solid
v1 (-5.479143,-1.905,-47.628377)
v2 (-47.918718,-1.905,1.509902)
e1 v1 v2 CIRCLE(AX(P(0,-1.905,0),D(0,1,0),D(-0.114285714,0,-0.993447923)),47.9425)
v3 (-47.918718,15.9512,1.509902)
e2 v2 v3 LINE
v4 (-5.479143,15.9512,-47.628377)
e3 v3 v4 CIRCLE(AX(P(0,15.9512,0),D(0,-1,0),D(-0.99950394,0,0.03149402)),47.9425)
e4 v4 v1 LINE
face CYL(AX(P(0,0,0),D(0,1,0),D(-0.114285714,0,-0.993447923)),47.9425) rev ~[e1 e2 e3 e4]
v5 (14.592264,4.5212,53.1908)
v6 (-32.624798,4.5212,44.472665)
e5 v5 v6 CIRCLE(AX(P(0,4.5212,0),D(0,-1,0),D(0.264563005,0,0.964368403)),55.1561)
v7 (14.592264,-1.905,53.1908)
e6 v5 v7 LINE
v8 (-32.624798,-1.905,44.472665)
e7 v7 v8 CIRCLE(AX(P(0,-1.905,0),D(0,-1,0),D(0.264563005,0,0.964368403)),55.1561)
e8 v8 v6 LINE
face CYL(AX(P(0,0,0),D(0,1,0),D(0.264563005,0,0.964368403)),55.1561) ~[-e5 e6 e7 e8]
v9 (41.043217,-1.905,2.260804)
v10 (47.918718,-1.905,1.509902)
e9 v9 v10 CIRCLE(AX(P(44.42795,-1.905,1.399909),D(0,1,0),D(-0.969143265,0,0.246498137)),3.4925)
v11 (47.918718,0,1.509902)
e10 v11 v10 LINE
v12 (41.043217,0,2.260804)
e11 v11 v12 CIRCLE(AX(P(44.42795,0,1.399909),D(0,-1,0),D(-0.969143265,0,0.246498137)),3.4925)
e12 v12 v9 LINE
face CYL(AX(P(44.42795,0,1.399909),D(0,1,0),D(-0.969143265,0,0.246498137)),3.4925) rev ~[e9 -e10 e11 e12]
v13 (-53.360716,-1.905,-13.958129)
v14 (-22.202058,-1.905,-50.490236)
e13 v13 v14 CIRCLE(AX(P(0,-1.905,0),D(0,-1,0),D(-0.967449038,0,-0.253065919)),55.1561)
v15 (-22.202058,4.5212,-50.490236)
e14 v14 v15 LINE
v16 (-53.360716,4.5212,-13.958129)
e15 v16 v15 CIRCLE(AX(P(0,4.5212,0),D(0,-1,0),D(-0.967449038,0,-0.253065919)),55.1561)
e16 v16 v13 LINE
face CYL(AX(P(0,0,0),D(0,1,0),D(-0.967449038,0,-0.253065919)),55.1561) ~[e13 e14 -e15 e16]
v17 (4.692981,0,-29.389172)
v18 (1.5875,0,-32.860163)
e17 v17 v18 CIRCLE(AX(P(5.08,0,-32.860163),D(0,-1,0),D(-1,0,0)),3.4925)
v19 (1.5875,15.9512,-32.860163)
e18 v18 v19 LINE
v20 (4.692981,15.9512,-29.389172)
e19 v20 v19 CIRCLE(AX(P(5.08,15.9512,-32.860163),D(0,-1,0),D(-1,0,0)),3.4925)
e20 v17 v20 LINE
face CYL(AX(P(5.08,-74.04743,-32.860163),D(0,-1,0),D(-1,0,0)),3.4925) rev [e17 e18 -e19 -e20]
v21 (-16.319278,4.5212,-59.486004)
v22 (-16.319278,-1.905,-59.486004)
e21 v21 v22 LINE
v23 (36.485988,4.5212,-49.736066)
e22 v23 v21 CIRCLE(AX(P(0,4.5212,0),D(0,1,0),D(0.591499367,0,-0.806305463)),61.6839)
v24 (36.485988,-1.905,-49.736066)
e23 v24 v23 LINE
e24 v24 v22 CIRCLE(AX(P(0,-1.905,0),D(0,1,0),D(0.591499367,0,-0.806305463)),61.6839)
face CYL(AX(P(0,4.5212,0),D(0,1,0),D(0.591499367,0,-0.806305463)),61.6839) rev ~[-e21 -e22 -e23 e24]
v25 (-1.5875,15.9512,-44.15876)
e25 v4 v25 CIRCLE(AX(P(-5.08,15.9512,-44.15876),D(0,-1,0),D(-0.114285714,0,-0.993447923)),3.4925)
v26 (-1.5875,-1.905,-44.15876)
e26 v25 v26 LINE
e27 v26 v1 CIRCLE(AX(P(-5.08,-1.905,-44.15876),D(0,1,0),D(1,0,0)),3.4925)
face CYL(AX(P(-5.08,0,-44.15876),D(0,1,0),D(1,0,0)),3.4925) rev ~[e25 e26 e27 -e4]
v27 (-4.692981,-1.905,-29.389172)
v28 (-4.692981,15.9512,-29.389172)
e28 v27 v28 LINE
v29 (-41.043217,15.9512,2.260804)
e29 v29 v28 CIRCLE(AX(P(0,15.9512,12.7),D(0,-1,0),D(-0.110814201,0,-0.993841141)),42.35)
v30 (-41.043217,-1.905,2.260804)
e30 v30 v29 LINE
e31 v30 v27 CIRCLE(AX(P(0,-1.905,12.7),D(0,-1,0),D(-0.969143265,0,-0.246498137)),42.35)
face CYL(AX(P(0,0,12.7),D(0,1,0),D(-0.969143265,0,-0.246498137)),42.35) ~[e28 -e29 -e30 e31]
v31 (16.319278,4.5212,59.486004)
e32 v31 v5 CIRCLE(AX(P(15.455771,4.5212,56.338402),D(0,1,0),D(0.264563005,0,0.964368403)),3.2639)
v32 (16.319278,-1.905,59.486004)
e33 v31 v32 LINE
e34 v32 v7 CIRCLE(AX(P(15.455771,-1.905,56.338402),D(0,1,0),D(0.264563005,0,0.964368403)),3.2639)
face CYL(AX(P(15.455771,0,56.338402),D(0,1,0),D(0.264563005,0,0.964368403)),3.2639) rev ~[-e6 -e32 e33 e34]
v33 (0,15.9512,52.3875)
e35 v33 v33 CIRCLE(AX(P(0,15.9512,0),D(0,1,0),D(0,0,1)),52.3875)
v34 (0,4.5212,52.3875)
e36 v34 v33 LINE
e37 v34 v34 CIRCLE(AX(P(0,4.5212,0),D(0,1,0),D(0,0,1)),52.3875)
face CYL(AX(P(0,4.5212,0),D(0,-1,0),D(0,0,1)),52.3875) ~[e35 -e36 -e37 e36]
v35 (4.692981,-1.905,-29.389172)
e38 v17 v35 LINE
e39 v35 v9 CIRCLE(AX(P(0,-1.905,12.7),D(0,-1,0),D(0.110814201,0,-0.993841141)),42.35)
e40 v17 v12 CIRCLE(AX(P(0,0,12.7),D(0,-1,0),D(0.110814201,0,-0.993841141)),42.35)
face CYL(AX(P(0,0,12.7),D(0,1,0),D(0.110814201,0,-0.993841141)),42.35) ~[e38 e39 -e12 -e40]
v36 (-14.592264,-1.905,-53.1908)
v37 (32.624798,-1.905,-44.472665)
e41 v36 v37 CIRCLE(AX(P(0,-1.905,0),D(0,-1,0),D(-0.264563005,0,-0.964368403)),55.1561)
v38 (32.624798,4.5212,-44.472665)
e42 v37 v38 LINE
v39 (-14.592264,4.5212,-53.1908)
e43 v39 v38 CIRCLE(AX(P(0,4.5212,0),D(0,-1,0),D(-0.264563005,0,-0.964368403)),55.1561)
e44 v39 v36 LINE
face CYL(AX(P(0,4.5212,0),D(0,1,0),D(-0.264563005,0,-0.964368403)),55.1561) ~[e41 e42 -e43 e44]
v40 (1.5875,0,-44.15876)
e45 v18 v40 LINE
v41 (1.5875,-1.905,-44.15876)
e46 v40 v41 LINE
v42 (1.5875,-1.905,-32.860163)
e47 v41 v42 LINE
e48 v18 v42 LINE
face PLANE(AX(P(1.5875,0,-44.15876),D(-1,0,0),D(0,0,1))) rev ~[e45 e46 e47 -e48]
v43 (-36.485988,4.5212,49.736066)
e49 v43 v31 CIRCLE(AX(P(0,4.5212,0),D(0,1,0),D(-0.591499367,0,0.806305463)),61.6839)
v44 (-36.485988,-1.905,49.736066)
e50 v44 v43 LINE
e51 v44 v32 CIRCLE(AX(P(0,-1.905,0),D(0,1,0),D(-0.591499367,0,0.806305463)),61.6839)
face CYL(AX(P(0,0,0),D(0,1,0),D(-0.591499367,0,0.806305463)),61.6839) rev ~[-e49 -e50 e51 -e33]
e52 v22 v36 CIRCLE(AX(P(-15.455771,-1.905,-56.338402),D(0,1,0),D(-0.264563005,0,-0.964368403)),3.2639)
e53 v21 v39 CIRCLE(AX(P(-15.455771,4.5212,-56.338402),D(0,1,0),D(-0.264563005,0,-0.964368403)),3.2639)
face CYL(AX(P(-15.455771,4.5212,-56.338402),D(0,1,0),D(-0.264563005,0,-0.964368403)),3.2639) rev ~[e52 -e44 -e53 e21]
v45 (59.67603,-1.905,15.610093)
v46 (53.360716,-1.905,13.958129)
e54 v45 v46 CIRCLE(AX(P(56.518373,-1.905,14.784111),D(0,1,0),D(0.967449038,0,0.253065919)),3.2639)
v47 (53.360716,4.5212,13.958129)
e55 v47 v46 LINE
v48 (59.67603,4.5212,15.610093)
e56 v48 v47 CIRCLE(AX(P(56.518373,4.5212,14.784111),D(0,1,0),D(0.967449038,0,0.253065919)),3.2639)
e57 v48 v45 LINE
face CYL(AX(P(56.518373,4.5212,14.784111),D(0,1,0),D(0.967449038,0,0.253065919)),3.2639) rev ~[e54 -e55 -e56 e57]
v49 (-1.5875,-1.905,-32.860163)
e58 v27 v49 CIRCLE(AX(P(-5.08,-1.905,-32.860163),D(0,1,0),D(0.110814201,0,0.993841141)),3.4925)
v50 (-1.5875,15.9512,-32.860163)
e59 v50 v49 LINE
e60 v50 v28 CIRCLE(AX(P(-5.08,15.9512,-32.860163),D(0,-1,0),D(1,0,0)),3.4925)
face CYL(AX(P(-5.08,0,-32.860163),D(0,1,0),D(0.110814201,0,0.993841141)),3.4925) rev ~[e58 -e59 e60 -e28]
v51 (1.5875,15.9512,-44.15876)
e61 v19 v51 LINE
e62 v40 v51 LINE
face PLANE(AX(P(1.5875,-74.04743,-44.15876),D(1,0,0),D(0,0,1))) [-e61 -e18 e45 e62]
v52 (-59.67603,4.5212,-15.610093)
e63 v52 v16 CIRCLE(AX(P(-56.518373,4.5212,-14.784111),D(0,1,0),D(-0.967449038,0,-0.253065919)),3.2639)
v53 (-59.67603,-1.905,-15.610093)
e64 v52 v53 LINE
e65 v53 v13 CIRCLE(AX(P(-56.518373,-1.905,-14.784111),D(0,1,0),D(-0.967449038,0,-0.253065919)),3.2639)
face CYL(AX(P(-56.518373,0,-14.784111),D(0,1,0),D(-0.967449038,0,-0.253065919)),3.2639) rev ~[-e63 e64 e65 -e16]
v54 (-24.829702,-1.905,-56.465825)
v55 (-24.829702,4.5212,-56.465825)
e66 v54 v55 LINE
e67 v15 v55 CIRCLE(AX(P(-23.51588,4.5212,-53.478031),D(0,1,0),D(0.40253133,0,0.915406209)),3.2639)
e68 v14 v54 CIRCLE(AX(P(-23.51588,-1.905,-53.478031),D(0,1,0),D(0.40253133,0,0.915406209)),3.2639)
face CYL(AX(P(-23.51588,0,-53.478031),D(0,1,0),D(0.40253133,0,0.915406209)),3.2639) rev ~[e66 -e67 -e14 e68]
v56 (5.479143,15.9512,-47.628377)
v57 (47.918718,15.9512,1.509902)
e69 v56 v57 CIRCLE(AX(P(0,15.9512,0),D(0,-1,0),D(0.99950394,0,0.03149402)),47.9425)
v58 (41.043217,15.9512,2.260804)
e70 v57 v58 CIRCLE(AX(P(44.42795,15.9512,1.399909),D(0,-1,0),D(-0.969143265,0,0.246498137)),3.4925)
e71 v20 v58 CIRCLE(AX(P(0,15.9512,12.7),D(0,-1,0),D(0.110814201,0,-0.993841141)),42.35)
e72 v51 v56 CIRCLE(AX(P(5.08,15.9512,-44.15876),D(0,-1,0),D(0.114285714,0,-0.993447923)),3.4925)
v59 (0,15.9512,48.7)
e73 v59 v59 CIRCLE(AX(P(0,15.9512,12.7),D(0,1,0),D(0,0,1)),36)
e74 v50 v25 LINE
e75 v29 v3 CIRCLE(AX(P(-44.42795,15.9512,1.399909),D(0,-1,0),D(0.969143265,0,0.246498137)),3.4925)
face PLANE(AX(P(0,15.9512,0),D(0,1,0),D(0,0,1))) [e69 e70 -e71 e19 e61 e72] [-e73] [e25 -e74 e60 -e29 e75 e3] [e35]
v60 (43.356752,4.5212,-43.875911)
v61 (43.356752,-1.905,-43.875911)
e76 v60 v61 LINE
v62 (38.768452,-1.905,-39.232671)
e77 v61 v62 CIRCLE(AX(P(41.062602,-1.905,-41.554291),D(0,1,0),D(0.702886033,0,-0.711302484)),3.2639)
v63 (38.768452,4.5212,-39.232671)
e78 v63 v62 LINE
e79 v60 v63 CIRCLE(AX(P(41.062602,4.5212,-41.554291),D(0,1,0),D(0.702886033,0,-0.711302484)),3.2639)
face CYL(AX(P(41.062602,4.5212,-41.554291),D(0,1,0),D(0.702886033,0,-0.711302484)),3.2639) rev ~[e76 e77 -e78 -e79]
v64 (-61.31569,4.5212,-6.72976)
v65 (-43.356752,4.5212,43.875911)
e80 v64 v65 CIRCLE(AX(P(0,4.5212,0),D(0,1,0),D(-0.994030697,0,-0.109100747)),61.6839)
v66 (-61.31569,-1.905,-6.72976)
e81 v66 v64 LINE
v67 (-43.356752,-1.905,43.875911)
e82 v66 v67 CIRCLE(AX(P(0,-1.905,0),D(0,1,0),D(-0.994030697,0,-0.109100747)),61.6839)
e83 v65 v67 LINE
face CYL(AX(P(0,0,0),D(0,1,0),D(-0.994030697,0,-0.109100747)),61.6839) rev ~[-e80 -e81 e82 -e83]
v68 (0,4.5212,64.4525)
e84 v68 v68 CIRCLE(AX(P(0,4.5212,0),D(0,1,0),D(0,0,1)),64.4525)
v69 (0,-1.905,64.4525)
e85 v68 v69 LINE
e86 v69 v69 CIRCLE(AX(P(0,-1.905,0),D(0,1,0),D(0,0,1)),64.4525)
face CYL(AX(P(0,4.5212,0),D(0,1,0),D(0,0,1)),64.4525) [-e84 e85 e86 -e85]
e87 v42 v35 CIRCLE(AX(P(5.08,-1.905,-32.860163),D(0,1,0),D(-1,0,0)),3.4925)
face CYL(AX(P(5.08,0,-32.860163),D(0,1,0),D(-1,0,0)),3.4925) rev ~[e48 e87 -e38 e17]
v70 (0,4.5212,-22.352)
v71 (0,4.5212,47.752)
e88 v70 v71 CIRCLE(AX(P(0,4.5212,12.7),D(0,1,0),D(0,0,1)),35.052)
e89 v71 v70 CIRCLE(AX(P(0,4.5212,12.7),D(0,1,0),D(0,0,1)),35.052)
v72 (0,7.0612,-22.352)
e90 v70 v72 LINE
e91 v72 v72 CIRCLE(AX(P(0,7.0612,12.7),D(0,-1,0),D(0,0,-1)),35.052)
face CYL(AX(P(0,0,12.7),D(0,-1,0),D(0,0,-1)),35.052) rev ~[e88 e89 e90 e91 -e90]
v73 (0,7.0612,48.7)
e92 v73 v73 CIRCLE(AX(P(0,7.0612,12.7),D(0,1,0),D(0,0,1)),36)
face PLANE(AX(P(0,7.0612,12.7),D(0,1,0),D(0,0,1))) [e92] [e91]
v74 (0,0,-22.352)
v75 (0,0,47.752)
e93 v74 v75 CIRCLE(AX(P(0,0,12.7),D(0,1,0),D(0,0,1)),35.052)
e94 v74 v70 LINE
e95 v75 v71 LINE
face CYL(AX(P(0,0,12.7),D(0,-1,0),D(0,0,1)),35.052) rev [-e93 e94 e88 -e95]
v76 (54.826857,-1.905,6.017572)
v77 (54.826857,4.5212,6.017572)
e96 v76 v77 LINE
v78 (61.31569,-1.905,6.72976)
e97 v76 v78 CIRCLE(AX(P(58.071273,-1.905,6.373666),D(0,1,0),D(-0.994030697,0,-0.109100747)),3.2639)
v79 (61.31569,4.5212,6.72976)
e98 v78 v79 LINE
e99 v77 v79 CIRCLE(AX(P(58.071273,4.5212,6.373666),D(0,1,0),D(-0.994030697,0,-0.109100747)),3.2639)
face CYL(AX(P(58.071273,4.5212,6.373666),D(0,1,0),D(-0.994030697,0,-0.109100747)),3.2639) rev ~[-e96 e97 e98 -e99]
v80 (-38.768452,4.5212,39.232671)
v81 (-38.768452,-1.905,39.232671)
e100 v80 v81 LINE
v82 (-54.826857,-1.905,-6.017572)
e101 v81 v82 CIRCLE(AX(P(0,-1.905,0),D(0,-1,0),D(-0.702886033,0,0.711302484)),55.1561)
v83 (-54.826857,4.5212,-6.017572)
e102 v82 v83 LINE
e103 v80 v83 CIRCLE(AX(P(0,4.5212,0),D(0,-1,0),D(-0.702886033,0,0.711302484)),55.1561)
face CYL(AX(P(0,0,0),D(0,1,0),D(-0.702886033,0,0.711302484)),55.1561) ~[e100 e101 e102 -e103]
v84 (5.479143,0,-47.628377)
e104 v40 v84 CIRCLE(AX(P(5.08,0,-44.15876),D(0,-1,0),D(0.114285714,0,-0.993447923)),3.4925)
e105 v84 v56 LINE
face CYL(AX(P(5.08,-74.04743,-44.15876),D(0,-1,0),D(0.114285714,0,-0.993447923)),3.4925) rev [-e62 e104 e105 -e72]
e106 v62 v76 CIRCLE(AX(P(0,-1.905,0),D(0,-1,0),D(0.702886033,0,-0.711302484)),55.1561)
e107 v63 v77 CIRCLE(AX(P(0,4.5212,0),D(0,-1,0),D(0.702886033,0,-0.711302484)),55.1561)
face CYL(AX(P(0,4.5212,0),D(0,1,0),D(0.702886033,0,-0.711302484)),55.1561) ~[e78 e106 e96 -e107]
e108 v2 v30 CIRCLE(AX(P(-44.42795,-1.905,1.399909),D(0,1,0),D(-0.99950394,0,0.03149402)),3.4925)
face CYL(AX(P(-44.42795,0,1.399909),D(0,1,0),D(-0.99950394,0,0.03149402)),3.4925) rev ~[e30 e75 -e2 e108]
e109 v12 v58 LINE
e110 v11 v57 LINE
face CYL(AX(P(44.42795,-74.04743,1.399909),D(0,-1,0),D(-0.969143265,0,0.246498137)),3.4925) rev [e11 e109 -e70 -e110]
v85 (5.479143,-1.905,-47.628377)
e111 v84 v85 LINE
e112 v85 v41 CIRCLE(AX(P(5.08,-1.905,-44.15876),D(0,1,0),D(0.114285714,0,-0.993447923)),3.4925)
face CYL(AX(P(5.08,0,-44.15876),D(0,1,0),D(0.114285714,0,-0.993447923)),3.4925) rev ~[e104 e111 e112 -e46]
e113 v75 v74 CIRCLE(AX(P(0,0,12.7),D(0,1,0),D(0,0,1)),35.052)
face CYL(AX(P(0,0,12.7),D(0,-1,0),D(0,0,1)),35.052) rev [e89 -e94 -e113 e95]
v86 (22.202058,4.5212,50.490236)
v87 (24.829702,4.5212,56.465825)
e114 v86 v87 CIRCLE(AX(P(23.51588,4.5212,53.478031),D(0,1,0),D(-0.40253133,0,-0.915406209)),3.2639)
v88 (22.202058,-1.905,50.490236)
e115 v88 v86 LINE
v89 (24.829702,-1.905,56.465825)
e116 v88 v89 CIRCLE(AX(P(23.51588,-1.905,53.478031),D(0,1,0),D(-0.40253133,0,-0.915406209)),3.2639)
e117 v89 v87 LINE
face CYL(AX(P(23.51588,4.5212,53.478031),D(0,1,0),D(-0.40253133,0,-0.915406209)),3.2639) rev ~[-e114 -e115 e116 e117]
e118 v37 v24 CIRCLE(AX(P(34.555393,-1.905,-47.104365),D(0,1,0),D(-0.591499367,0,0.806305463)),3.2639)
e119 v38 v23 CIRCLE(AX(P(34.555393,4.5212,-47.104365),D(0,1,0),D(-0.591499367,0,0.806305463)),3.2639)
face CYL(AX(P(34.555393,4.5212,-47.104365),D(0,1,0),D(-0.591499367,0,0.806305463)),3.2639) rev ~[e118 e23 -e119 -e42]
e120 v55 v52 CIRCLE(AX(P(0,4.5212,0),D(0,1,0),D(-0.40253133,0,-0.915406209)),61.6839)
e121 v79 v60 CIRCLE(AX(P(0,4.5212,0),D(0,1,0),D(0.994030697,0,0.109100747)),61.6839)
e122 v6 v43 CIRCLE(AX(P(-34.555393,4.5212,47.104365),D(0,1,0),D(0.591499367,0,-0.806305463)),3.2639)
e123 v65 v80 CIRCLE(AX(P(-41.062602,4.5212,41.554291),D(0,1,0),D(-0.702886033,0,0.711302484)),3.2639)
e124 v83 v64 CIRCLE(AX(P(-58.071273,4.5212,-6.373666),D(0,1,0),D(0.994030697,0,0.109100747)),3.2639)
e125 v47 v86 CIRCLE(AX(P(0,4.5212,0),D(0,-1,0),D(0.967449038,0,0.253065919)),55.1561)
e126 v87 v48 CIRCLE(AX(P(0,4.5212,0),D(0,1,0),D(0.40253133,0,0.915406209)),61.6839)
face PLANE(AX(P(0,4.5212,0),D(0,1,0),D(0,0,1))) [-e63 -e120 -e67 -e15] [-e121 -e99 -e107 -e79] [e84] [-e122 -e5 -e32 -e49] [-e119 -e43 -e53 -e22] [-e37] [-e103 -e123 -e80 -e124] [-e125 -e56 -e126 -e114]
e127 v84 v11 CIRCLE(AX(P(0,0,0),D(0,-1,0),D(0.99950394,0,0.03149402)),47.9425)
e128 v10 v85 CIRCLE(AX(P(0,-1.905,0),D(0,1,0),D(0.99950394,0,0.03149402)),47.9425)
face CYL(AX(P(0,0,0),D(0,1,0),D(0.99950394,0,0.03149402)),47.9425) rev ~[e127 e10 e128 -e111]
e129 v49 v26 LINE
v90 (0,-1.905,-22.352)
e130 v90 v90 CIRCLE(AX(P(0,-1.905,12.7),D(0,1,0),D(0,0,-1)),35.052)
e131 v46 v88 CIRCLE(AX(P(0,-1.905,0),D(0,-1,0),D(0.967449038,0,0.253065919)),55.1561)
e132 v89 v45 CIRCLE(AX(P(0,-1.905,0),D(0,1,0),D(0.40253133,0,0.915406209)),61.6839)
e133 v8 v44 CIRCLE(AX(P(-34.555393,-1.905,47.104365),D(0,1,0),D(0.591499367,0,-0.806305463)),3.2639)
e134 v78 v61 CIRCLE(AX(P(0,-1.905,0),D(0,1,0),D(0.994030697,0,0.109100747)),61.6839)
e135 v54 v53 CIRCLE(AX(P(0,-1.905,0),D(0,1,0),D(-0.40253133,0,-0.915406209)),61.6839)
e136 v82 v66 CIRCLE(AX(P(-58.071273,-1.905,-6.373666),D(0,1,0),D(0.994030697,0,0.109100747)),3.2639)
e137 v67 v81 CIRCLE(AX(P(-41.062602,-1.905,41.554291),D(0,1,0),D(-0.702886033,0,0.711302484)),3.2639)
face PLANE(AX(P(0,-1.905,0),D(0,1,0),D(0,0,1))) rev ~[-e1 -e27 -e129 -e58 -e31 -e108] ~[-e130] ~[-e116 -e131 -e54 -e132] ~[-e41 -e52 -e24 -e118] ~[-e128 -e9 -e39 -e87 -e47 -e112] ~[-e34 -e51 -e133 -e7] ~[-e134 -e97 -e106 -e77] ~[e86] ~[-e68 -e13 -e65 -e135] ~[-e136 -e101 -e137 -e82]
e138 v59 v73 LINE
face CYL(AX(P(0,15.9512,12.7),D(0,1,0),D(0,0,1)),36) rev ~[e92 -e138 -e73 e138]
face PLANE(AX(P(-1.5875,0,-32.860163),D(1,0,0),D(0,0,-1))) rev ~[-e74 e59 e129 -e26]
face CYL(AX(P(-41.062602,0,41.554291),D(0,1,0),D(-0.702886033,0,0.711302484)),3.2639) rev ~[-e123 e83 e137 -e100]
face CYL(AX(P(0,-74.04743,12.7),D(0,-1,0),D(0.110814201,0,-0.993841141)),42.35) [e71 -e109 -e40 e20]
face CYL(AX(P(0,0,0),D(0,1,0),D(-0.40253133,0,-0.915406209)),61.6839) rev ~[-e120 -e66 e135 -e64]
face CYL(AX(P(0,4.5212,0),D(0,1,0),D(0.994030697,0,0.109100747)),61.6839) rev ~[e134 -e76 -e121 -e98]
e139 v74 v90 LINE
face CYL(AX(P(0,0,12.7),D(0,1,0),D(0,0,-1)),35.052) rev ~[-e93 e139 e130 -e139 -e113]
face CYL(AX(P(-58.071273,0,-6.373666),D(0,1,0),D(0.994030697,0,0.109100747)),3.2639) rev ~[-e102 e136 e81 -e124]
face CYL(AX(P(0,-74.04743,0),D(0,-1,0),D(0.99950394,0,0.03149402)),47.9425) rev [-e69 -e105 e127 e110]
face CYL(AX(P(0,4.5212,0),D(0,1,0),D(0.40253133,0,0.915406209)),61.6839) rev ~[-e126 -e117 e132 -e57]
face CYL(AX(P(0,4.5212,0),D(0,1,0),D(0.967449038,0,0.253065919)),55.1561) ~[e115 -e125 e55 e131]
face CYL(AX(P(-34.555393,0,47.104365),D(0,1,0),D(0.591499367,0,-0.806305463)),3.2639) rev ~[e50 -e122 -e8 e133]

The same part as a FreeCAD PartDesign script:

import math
import FreeCAD as App
import Part
import Sketcher

V = App.Vector
Q = App.Units.Quantity

doc = App.newDocument("Part")
body = doc.addObject("PartDesign::Body", "Body")

# Sketch on XZ plane
sketch1 = doc.addObject("Sketcher::SketchObject", "Sketch")
body.addObject(sketch1)
sketch1.AttachmentSupport = (doc.XZ_Plane, [""])
sketch1.MapMode = "FlatFace"
sketch1.addGeometry(Part.Circle(V(0, 0, 0), V(0, 0, 1), 62), False)
sketch1.addGeometry(Part.Circle(V(0, 13, 0), V(0, 0, 1), 35), False)
sketch1.addConstraint(Sketcher.Constraint("Coincident", 0, 3, -1, 1))
sketch1.addConstraint(Sketcher.Constraint("PointOnObject", 1, 3, -2))
sketch1.addConstraint(Sketcher.Constraint("Diameter", 1, Q("2.76 in")))
sketch1.addConstraint(Sketcher.Constraint("Diameter", 0, Q("4.875 in")))
sketch1.addConstraint(Sketcher.Constraint("DistanceY", -1, 1, 1, 3, Q("0.5 in")))
pad1 = doc.addObject("PartDesign::Pad", "Pad")
body.addObject(pad1)
pad1.Profile = sketch1
pad1.Length = Q("0.178 in")
pad1.Reversed = True

# Sketch on XZ plane
sketch2 = doc.addObject("Sketcher::SketchObject", "Sketch001")
body.addObject(sketch2)
sketch2.AttachmentSupport = (doc.XZ_Plane, [""])
sketch2.MapMode = "FlatFace"
sketch2.AttachmentOffset = App.Placement(V(0, 0, -0.178 * 25.4), App.Rotation())
sketch2.addGeometry(Part.Circle(V(0, 0, 0), V(0, 0, 1), 52), False)
sketch2.addConstraint(Sketcher.Constraint("Coincident", 0, 3, -1, 1))
sketch2.addConstraint(Sketcher.Constraint("Diameter", 0, Q("4.125 in")))
pad2 = doc.addObject("PartDesign::Pad", "Pad001")
body.addObject(pad2)
pad2.Profile = sketch2
pad2.Length = Q("0.45 in")
pad2.Reversed = True

# Sketch on XZ plane
sketch3 = doc.addObject("Sketcher::SketchObject", "Sketch002")
body.addObject(sketch3)
sketch3.AttachmentSupport = (doc.XZ_Plane, [""])
sketch3.MapMode = "FlatFace"
sketch3.addGeometry(Part.Circle(V(0, 13, 0), V(0, 0, 1), 35), False)
sketch3.addConstraint(Sketcher.Constraint("PointOnObject", 0, 3, -2))
sketch3.addConstraint(Sketcher.Constraint("Diameter", 0, Q("2.76 in")))
sketch3.addConstraint(Sketcher.Constraint("DistanceY", -1, 1, 0, 3, Q("0.5 in")))
pocket1 = doc.addObject("PartDesign::Pocket", "Pocket")
body.addObject(pocket1)
pocket1.Profile = sketch3
pocket1.Type = "ThroughAll"

# Sketch on XZ plane
sketch4 = doc.addObject("Sketcher::SketchObject", "Sketch003")
body.addObject(sketch4)
sketch4.AttachmentSupport = (doc.XZ_Plane, [""])
sketch4.MapMode = "FlatFace"
sketch4.AttachmentOffset = App.Placement(V(0, 0, -0.628 * 25.4), App.Rotation())
sketch4.addGeometry(Part.Circle(V(0, 13, 0), V(0, 0, 1), 36), False)
sketch4.addConstraint(Sketcher.Constraint("PointOnObject", 0, 3, -2))
sketch4.addConstraint(Sketcher.Constraint("DistanceY", -1, 1, 0, 3, Q("0.5 in")))
sketch4.addConstraint(Sketcher.Constraint("Diameter", 0, Q("72 mm")))
pocket2 = doc.addObject("PartDesign::Pocket", "Pocket001")
body.addObject(pocket2)
pocket2.Profile = sketch4
pocket2.Length = Q("0.35 in")
pocket2.Reversed = True

# Sketch on XZ plane
sketch5 = doc.addObject("Sketcher::SketchObject", "Sketch004")
body.addObject(sketch5)
sketch5.AttachmentSupport = (doc.XZ_Plane, [""])
sketch5.MapMode = "FlatFace"
sketch5.AttachmentOffset = App.Placement(V(0, 0, -0.178 * 25.4), App.Rotation())
sketch5.addGeometry(Part.ArcOfCircle(Part.Circle(V(0, 0, 0), V(0, 0, 1), 61.7), math.radians(135), math.radians(186)), False)
sketch5.addGeometry(Part.ArcOfCircle(Part.Circle(V(-41.1, 41.6, 0), V(0, 0, 1), 3.3), math.radians(-45), math.radians(135)), False)
sketch5.addGeometry(Part.ArcOfCircle(Part.Circle(V(0, 0, 0), V(0, 0, 1), 55.2), math.radians(135), math.radians(186)), False)
sketch5.addGeometry(Part.ArcOfCircle(Part.Circle(V(-58.1, -6.4, 0), V(0, 0, 1), 3.3), math.radians(-174), math.radians(6)), False)
sketch5.addConstraint(Sketcher.Constraint("Tangent", 0, 1, 1, 2))
sketch5.addConstraint(Sketcher.Constraint("Tangent", 1, 1, 2, 1))
sketch5.addConstraint(Sketcher.Constraint("Tangent", 2, 2, 3, 2))
sketch5.addConstraint(Sketcher.Constraint("Tangent", 3, 1, 0, 2))
sketch5.addConstraint(Sketcher.Constraint("Coincident", 0, 3, -1, 1))
sketch5.addConstraint(Sketcher.Constraint("Coincident", 2, 3, -1, 1))
sketch5.addConstraint(Sketcher.Constraint("Radius", 0, Q("2.4285 in")))
sketch5.addConstraint(Sketcher.Constraint("Radius", 1, Q("0.1285 in")))
sketch5.addConstraint(Sketcher.Constraint("DistanceY", -1, 1, 1, 3, Q("41.554291 mm")))
sketch5.addConstraint(Sketcher.Constraint("DistanceY", 2, 2, -1, 1, Q("6.017572 mm")))
pocket3 = doc.addObject("PartDesign::Pocket", "Pocket002")
body.addObject(pocket3)
pocket3.Profile = sketch5
pocket3.Length = Q("0.178 in")
pocket3.Reversed = True
doc.recompute()

polarpattern = doc.addObject("PartDesign::PolarPattern", "PolarPattern")
body.addObject(polarpattern)
polarpattern.Originals = [pocket3]
polarpattern.Axis = (doc.Y_Axis, [""])
polarpattern.Angle = 360
polarpattern.Occurrences = 6
body.Tip = polarpattern

# Sketch on XZ plane
sketch6 = doc.addObject("Sketcher::SketchObject", "Sketch005")
body.addObject(sketch6)
sketch6.AttachmentSupport = (doc.XZ_Plane, [""])
sketch6.MapMode = "FlatFace"
sketch6.AttachmentOffset = App.Placement(V(0, 0, -0.628 * 25.4), App.Rotation())
sketch6.addGeometry(Part.LineSegment(V(-1.6, -32.9, 0), V(-1.6, -44.2, 0)), False)
sketch6.addGeometry(Part.ArcOfCircle(Part.Circle(V(-5.1, -44.2, 0), V(0, 0, 1), 3.5), math.radians(-97), math.radians(0)), False)
sketch6.addGeometry(Part.ArcOfCircle(Part.Circle(V(0, 0, 0), V(0, 0, 1), 47.9), math.radians(178), math.radians(263)), False)
sketch6.addGeometry(Part.ArcOfCircle(Part.Circle(V(-44.4, 1.4, 0), V(0, 0, 1), 3.5), math.radians(14), math.radians(178)), False)
sketch6.addGeometry(Part.ArcOfCircle(Part.Circle(V(0, 12.7, 0), V(0, 0, 1), 42.4), math.radians(-166), math.radians(-96)), False)
sketch6.addGeometry(Part.ArcOfCircle(Part.Circle(V(-5.1, -32.9, 0), V(0, 0, 1), 3.5), math.radians(0), math.radians(84)), False)
sketch6.addGeometry(Part.LineSegment(V(1.6, -44.2, 0), V(1.6, -32.9, 0)), False)
sketch6.addGeometry(Part.ArcOfCircle(Part.Circle(V(5.1, -32.9, 0), V(0, 0, 1), 3.5), math.radians(96), math.radians(180)), False)
sketch6.addGeometry(Part.ArcOfCircle(Part.Circle(V(0, 12.7, 0), V(0, 0, 1), 42.4), math.radians(-84), math.radians(-14)), False)
sketch6.addGeometry(Part.ArcOfCircle(Part.Circle(V(44.4, 1.4, 0), V(0, 0, 1), 3.5), math.radians(2), math.radians(166)), False)
sketch6.addGeometry(Part.ArcOfCircle(Part.Circle(V(0, 0, 0), V(0, 0, 1), 47.9), math.radians(-83), math.radians(2)), False)
sketch6.addGeometry(Part.ArcOfCircle(Part.Circle(V(5.1, -44.2, 0), V(0, 0, 1), 3.5), math.radians(180), math.radians(277)), False)
sketch6.addConstraint(Sketcher.Constraint("Tangent", 0, 2, 1, 2))
sketch6.addConstraint(Sketcher.Constraint("Tangent", 1, 1, 2, 2))
sketch6.addConstraint(Sketcher.Constraint("Tangent", 2, 1, 3, 2))
sketch6.addConstraint(Sketcher.Constraint("Tangent", 3, 1, 4, 1))
sketch6.addConstraint(Sketcher.Constraint("Tangent", 4, 2, 5, 2))
sketch6.addConstraint(Sketcher.Constraint("Tangent", 5, 1, 0, 1))
sketch6.addConstraint(Sketcher.Constraint("Tangent", 6, 2, 7, 2))
sketch6.addConstraint(Sketcher.Constraint("Tangent", 7, 1, 8, 1))
sketch6.addConstraint(Sketcher.Constraint("Tangent", 8, 2, 9, 2))
sketch6.addConstraint(Sketcher.Constraint("Tangent", 9, 1, 10, 2))
sketch6.addConstraint(Sketcher.Constraint("Tangent", 10, 1, 11, 2))
sketch6.addConstraint(Sketcher.Constraint("Tangent", 11, 1, 6, 1))
sketch6.addConstraint(Sketcher.Constraint("Vertical", 0))
sketch6.addConstraint(Sketcher.Constraint("Vertical", 6))
sketch6.addConstraint(Sketcher.Constraint("Coincident", 2, 3, -1, 1))
sketch6.addConstraint(Sketcher.Constraint("Coincident", 10, 3, -1, 1))
sketch6.addConstraint(Sketcher.Constraint("Coincident", 8, 3, 4, 3))
sketch6.addConstraint(Sketcher.Constraint("Equal", 1, 3))
sketch6.addConstraint(Sketcher.Constraint("Equal", 3, 5))
sketch6.addConstraint(Sketcher.Constraint("Equal", 5, 7))
sketch6.addConstraint(Sketcher.Constraint("Equal", 4, 8))
sketch6.addConstraint(Sketcher.Constraint("Equal", 7, 9))
sketch6.addConstraint(Sketcher.Constraint("Equal", 2, 10))
sketch6.addConstraint(Sketcher.Constraint("Equal", 9, 11))
sketch6.addConstraint(Sketcher.Constraint("Symmetric", 5, 3, 7, 3, -2))
sketch6.addConstraint(Sketcher.Constraint("DistanceX", 1, 3, -1, 1, Q("0.2 in")))
sketch6.addConstraint(Sketcher.Constraint("DistanceY", -1, 1, 4, 3, Q("0.5 in")))
sketch6.addConstraint(Sketcher.Constraint("Radius", 1, Q("0.1375 in")))
sketch6.addConstraint(Sketcher.Constraint("Radius", 2, Q("1.8875 in")))
sketch6.addConstraint(Sketcher.Constraint("Radius", 4, Q("42.35 mm")))
pocket4 = doc.addObject("PartDesign::Pocket", "Pocket003")
body.addObject(pocket4)
pocket4.Profile = sketch6
pocket4.Type = "ThroughAll"
pocket4.Midplane = True

# Sketch on XZ plane
sketch7 = doc.addObject("Sketcher::SketchObject", "Sketch006")
body.addObject(sketch7)
sketch7.AttachmentSupport = (doc.XZ_Plane, [""])
sketch7.MapMode = "FlatFace"
sketch7.addGeometry(Part.Circle(V(0, 0, 0), V(0, 0, 1), 61.9), False)
sketch7.addGeometry(Part.ArcOfCircle(Part.Circle(V(0, 0, 0), V(0, 0, 1), 61.7), math.radians(135), math.radians(186)), False)
sketch7.addGeometry(Part.ArcOfCircle(Part.Circle(V(-41.1, 41.6, 0), V(0, 0, 1), 3.3), math.radians(-45), math.radians(135)), False)
sketch7.addGeometry(Part.ArcOfCircle(Part.Circle(V(0, 0, 0), V(0, 0, 1), 55.2), math.radians(135), math.radians(186)), False)
sketch7.addGeometry(Part.ArcOfCircle(Part.Circle(V(-58.1, -6.4, 0), V(0, 0, 1), 3.3), math.radians(-174), math.radians(6)), False)
sketch7.addGeometry(Part.ArcOfCircle(Part.Circle(V(0, 0, 0), V(0, 0, 1), 61.7), math.radians(75), math.radians(126)), False)
sketch7.addGeometry(Part.ArcOfCircle(Part.Circle(V(15.5, 56.3, 0), V(0, 0, 1), 3.3), math.radians(-105), math.radians(75)), False)
sketch7.addGeometry(Part.ArcOfCircle(Part.Circle(V(0, 0, 0), V(0, 0, 1), 55.2), math.radians(75), math.radians(126)), False)
sketch7.addGeometry(Part.ArcOfCircle(Part.Circle(V(-34.6, 47.1, 0), V(0, 0, 1), 3.3), math.radians(126), math.radians(306)), False)
sketch7.addGeometry(Part.ArcOfCircle(Part.Circle(V(0, 0, 0), V(0, 0, 1), 61.7), math.radians(-165), math.radians(-114)), False)
sketch7.addGeometry(Part.ArcOfCircle(Part.Circle(V(-56.5, -14.8, 0), V(0, 0, 1), 3.3), math.radians(15), math.radians(195)), False)
sketch7.addGeometry(Part.ArcOfCircle(Part.Circle(V(0, 0, 0), V(0, 0, 1), 55.2), math.radians(-165), math.radians(-114)), False)
sketch7.addGeometry(Part.ArcOfCircle(Part.Circle(V(-23.5, -53.5, 0), V(0, 0, 1), 3.3), math.radians(-114), math.radians(66)), False)
sketch7.addGeometry(Part.ArcOfCircle(Part.Circle(V(-5.1, -32.9, 0), V(0, 0, 1), 3.5), math.radians(0), math.radians(84)), False)
sketch7.addGeometry(Part.LineSegment(V(-1.6, -32.9, 0), V(-1.6, -44.2, 0)), False)
sketch7.addGeometry(Part.ArcOfCircle(Part.Circle(V(-5.1, -44.2, 0), V(0, 0, 1), 3.5), math.radians(-97), math.radians(0)), False)
sketch7.addGeometry(Part.ArcOfCircle(Part.Circle(V(0, 0, 0), V(0, 0, 1), 47.9), math.radians(178), math.radians(263)), False)
sketch7.addGeometry(Part.ArcOfCircle(Part.Circle(V(-44.4, 1.4, 0), V(0, 0, 1), 3.5), math.radians(14), math.radians(178)), False)
sketch7.addGeometry(Part.ArcOfCircle(Part.Circle(V(0, 12.7, 0), V(0, 0, 1), 42.4), math.radians(-166), math.radians(-96)), False)
sketch7.addGeometry(Part.Circle(V(0, 12.7, 0), V(0, 0, 1), 35.1), False)
sketch7.addGeometry(Part.ArcOfCircle(Part.Circle(V(0, 0, 0), V(0, 0, 1), 61.7), math.radians(15), math.radians(66)), False)
sketch7.addGeometry(Part.ArcOfCircle(Part.Circle(V(56.5, 14.8, 0), V(0, 0, 1), 3.3), math.radians(-165), math.radians(15)), False)
sketch7.addGeometry(Part.ArcOfCircle(Part.Circle(V(0, 0, 0), V(0, 0, 1), 55.2), math.radians(15), math.radians(66)), False)
sketch7.addGeometry(Part.ArcOfCircle(Part.Circle(V(23.5, 53.5, 0), V(0, 0, 1), 3.3), math.radians(66), math.radians(246)), False)
sketch7.addGeometry(Part.ArcOfCircle(Part.Circle(V(5.1, -44.2, 0), V(0, 0, 1), 3.5), math.radians(180), math.radians(277)), False)
sketch7.addGeometry(Part.LineSegment(V(1.6, -44.2, 0), V(1.6, -32.9, 0)), False)
sketch7.addGeometry(Part.ArcOfCircle(Part.Circle(V(5.1, -32.9, 0), V(0, 0, 1), 3.5), math.radians(96), math.radians(180)), False)
sketch7.addGeometry(Part.ArcOfCircle(Part.Circle(V(0, 12.7, 0), V(0, 0, 1), 42.4), math.radians(-84), math.radians(-14)), False)
sketch7.addGeometry(Part.ArcOfCircle(Part.Circle(V(44.4, 1.4, 0), V(0, 0, 1), 3.5), math.radians(2), math.radians(166)), False)
sketch7.addGeometry(Part.ArcOfCircle(Part.Circle(V(0, 0, 0), V(0, 0, 1), 47.9), math.radians(-83), math.radians(2)), False)
sketch7.addGeometry(Part.ArcOfCircle(Part.Circle(V(0, 0, 0), V(0, 0, 1), 61.7), math.radians(-105), math.radians(-54)), False)
sketch7.addGeometry(Part.ArcOfCircle(Part.Circle(V(-15.5, -56.3, 0), V(0, 0, 1), 3.3), math.radians(75), math.radians(255)), False)
sketch7.addGeometry(Part.ArcOfCircle(Part.Circle(V(0, 0, 0), V(0, 0, 1), 55.2), math.radians(-105), math.radians(-54)), False)
sketch7.addGeometry(Part.ArcOfCircle(Part.Circle(V(34.6, -47.1, 0), V(0, 0, 1), 3.3), math.radians(-54), math.radians(126)), False)
sketch7.addGeometry(Part.ArcOfCircle(Part.Circle(V(0, 0, 0), V(0, 0, 1), 61.7), math.radians(-45), math.radians(6)), False)
sketch7.addGeometry(Part.ArcOfCircle(Part.Circle(V(41.1, -41.6, 0), V(0, 0, 1), 3.3), math.radians(135), math.radians(315)), False)
sketch7.addGeometry(Part.ArcOfCircle(Part.Circle(V(0, 0, 0), V(0, 0, 1), 55.2), math.radians(-45), math.radians(6)), False)
sketch7.addGeometry(Part.ArcOfCircle(Part.Circle(V(58.1, 6.4, 0), V(0, 0, 1), 3.3), math.radians(6), math.radians(186)), False)
sketch7.addConstraint(Sketcher.Constraint("Tangent", 1, 1, 2, 2))
sketch7.addConstraint(Sketcher.Constraint("Tangent", 2, 1, 3, 1))
sketch7.addConstraint(Sketcher.Constraint("Tangent", 3, 2, 4, 2))
sketch7.addConstraint(Sketcher.Constraint("Tangent", 4, 1, 1, 2))
sketch7.addConstraint(Sketcher.Constraint("Tangent", 5, 1, 6, 2))
sketch7.addConstraint(Sketcher.Constraint("Tangent", 6, 1, 7, 1))
sketch7.addConstraint(Sketcher.Constraint("Tangent", 7, 2, 8, 2))
sketch7.addConstraint(Sketcher.Constraint("Tangent", 8, 1, 5, 2))
sketch7.addConstraint(Sketcher.Constraint("Tangent", 9, 1, 10, 2))
sketch7.addConstraint(Sketcher.Constraint("Tangent", 10, 1, 11, 1))
sketch7.addConstraint(Sketcher.Constraint("Tangent", 11, 2, 12, 2))
sketch7.addConstraint(Sketcher.Constraint("Tangent", 12, 1, 9, 2))
sketch7.addConstraint(Sketcher.Constraint("Tangent", 13, 1, 14, 1))
sketch7.addConstraint(Sketcher.Constraint("Tangent", 14, 2, 15, 2))
sketch7.addConstraint(Sketcher.Constraint("Tangent", 15, 1, 16, 2))
sketch7.addConstraint(Sketcher.Constraint("Tangent", 16, 1, 17, 2))
sketch7.addConstraint(Sketcher.Constraint("Tangent", 17, 1, 18, 1))
sketch7.addConstraint(Sketcher.Constraint("Tangent", 18, 2, 13, 2))
sketch7.addConstraint(Sketcher.Constraint("Tangent", 20, 1, 21, 2))
sketch7.addConstraint(Sketcher.Constraint("Tangent", 21, 1, 22, 1))
sketch7.addConstraint(Sketcher.Constraint("Tangent", 22, 2, 23, 2))
sketch7.addConstraint(Sketcher.Constraint("Tangent", 23, 1, 20, 2))
sketch7.addConstraint(Sketcher.Constraint("Tangent", 24, 1, 25, 1))
sketch7.addConstraint(Sketcher.Constraint("Tangent", 25, 2, 26, 2))
sketch7.addConstraint(Sketcher.Constraint("Tangent", 26, 1, 27, 1))
sketch7.addConstraint(Sketcher.Constraint("Tangent", 27, 2, 28, 2))
sketch7.addConstraint(Sketcher.Constraint("Tangent", 28, 1, 29, 2))
sketch7.addConstraint(Sketcher.Constraint("Tangent", 29, 1, 24, 2))
sketch7.addConstraint(Sketcher.Constraint("Tangent", 30, 1, 31, 2))
sketch7.addConstraint(Sketcher.Constraint("Tangent", 31, 1, 32, 1))
sketch7.addConstraint(Sketcher.Constraint("Tangent", 32, 2, 33, 2))
sketch7.addConstraint(Sketcher.Constraint("Tangent", 33, 1, 30, 2))
sketch7.addConstraint(Sketcher.Constraint("Tangent", 34, 1, 35, 2))
sketch7.addConstraint(Sketcher.Constraint("Tangent", 35, 1, 36, 1))
sketch7.addConstraint(Sketcher.Constraint("Tangent", 36, 2, 37, 2))
sketch7.addConstraint(Sketcher.Constraint("Tangent", 37, 1, 34, 2))
sketch7.addConstraint(Sketcher.Constraint("Vertical", 14))
sketch7.addConstraint(Sketcher.Constraint("Vertical", 25))
sketch7.addConstraint(Sketcher.Constraint("Coincident", 0, 3, -1, 1))
sketch7.addConstraint(Sketcher.Constraint("Coincident", 1, 3, -1, 1))
sketch7.addConstraint(Sketcher.Constraint("Coincident", 3, 3, -1, 1))
sketch7.addConstraint(Sketcher.Constraint("Coincident", 5, 3, -1, 1))
sketch7.addConstraint(Sketcher.Constraint("Coincident", 7, 3, -1, 1))
sketch7.addConstraint(Sketcher.Constraint("Coincident", 9, 3, -1, 1))
sketch7.addConstraint(Sketcher.Constraint("Coincident", 11, 3, -1, 1))
sketch7.addConstraint(Sketcher.Constraint("Coincident", 16, 3, -1, 1))
sketch7.addConstraint(Sketcher.Constraint("Coincident", 20, 3, -1, 1))
sketch7.addConstraint(Sketcher.Constraint("Coincident", 22, 3, -1, 1))
sketch7.addConstraint(Sketcher.Constraint("Coincident", 29, 3, -1, 1))
sketch7.addConstraint(Sketcher.Constraint("Coincident", 30, 3, -1, 1))
sketch7.addConstraint(Sketcher.Constraint("Coincident", 32, 3, -1, 1))
sketch7.addConstraint(Sketcher.Constraint("Coincident", 34, 3, -1, 1))
sketch7.addConstraint(Sketcher.Constraint("Coincident", 36, 3, -1, 1))
sketch7.addConstraint(Sketcher.Constraint("Coincident", 19, 3, 18, 3))
sketch7.addConstraint(Sketcher.Constraint("Coincident", 27, 3, 18, 3))
sketch7.addConstraint(Sketcher.Constraint("Equal", 1, 5))
sketch7.addConstraint(Sketcher.Constraint("Equal", 4, 6))
sketch7.addConstraint(Sketcher.Constraint("Equal", 5, 9))
sketch7.addConstraint(Sketcher.Constraint("Equal", 8, 10))
sketch7.addConstraint(Sketcher.Constraint("Equal", 13, 15))
sketch7.addConstraint(Sketcher.Constraint("Equal", 15, 17))
sketch7.addConstraint(Sketcher.Constraint("Equal", 9, 20))
sketch7.addConstraint(Sketcher.Constraint("Equal", 12, 21))
sketch7.addConstraint(Sketcher.Constraint("Equal", 17, 24))
sketch7.addConstraint(Sketcher.Constraint("Equal", 24, 26))
sketch7.addConstraint(Sketcher.Constraint("Equal", 18, 27))
sketch7.addConstraint(Sketcher.Constraint("Equal", 26, 28))
sketch7.addConstraint(Sketcher.Constraint("Equal", 16, 29))
sketch7.addConstraint(Sketcher.Constraint("Equal", 20, 30))
sketch7.addConstraint(Sketcher.Constraint("Equal", 23, 31))
sketch7.addConstraint(Sketcher.Constraint("Equal", 30, 34))
sketch7.addConstraint(Sketcher.Constraint("Equal", 33, 35))
sketch7.addConstraint(Sketcher.Constraint("Symmetric", 13, 3, 26, 3, -2))
sketch7.addConstraint(Sketcher.Constraint("Diameter", 19, Q("2.76 in")))
sketch7.addConstraint(Sketcher.Constraint("Diameter", 0, Q("4.875 in")))
sketch7.addConstraint(Sketcher.Constraint("DistanceX", 13, 3, -1, 1, Q("0.2 in")))
sketch7.addConstraint(Sketcher.Constraint("DistanceY", -1, 1, 18, 3, Q("0.5 in")))
sketch7.addConstraint(Sketcher.Constraint("Radius", 1, Q("2.4285 in")))
sketch7.addConstraint(Sketcher.Constraint("Radius", 2, Q("0.1285 in")))
sketch7.addConstraint(Sketcher.Constraint("Radius", 13, Q("0.1375 in")))
sketch7.addConstraint(Sketcher.Constraint("Radius", 16, Q("1.8875 in")))
sketch7.addConstraint(Sketcher.Constraint("Radius", 18, Q("42.35 mm")))
sketch7.addConstraint(Sketcher.Constraint("DistanceY", -1, 1, 6, 1, Q("53.1908 mm")))
sketch7.addConstraint(Sketcher.Constraint("DistanceX", 7, 2, -1, 1, Q("32.624798 mm")))
sketch7.addConstraint(Sketcher.Constraint("DistanceY", 31, 1, -1, 1, Q("53.1908 mm")))
sketch7.addConstraint(Sketcher.Constraint("DistanceX", -1, 1, 32, 2, Q("32.624798 mm")))
sketch7.addConstraint(Sketcher.Constraint("DistanceY", -1, 1, 2, 3, Q("41.554291 mm")))
sketch7.addConstraint(Sketcher.Constraint("DistanceY", 10, 3, -1, 1, Q("14.784111 mm")))
sketch7.addConstraint(Sketcher.Constraint("DistanceX", 12, 3, -1, 1, Q("23.51588 mm")))
sketch7.addConstraint(Sketcher.Constraint("DistanceY", -1, 1, 21, 3, Q("14.784111 mm")))
sketch7.addConstraint(Sketcher.Constraint("DistanceX", -1, 1, 23, 3, Q("23.51588 mm")))
sketch7.addConstraint(Sketcher.Constraint("DistanceY", 35, 3, -1, 1, Q("41.554291 mm")))
sketch7.addConstraint(Sketcher.Constraint("DistanceY", 3, 2, -1, 1, Q("6.017572 mm")))
sketch7.addConstraint(Sketcher.Constraint("DistanceY", -1, 1, 36, 2, Q("6.017572 mm")))
pad3 = doc.addObject("PartDesign::Pad", "Pad002")
body.addObject(pad3)
pad3.Profile = sketch7
pad3.Length = Q("0.075 in")

# Sketch on XZ plane
sketch8 = doc.addObject("Sketcher::SketchObject", "Sketch007")
body.addObject(sketch8)
sketch8.AttachmentSupport = (doc.XZ_Plane, [""])
sketch8.MapMode = "FlatFace"
sketch8.AttachmentOffset = App.Placement(V(0, 0, -0.178 * 25.4), App.Rotation())
sketch8.addGeometry(Part.Circle(V(0, 0, 0), V(0, 0, 1), 64), False)
sketch8.addGeometry(Part.Circle(V(0, 0, 0), V(0, 0, 1), 62), False)
sketch8.addConstraint(Sketcher.Constraint("Coincident", 0, 3, -1, 1))
sketch8.addConstraint(Sketcher.Constraint("Coincident", 1, 3, -1, 1))
sketch8.addConstraint(Sketcher.Constraint("Diameter", 0, Q("5.075 in")))
sketch8.addConstraint(Sketcher.Constraint("Diameter", 1, Q("4.875 in")))
pad4 = doc.addObject("PartDesign::Pad", "Pad003")
body.addObject(pad4)
pad4.Profile = sketch8
pad4.Length = Q("0.253 in")

doc.recompute()
